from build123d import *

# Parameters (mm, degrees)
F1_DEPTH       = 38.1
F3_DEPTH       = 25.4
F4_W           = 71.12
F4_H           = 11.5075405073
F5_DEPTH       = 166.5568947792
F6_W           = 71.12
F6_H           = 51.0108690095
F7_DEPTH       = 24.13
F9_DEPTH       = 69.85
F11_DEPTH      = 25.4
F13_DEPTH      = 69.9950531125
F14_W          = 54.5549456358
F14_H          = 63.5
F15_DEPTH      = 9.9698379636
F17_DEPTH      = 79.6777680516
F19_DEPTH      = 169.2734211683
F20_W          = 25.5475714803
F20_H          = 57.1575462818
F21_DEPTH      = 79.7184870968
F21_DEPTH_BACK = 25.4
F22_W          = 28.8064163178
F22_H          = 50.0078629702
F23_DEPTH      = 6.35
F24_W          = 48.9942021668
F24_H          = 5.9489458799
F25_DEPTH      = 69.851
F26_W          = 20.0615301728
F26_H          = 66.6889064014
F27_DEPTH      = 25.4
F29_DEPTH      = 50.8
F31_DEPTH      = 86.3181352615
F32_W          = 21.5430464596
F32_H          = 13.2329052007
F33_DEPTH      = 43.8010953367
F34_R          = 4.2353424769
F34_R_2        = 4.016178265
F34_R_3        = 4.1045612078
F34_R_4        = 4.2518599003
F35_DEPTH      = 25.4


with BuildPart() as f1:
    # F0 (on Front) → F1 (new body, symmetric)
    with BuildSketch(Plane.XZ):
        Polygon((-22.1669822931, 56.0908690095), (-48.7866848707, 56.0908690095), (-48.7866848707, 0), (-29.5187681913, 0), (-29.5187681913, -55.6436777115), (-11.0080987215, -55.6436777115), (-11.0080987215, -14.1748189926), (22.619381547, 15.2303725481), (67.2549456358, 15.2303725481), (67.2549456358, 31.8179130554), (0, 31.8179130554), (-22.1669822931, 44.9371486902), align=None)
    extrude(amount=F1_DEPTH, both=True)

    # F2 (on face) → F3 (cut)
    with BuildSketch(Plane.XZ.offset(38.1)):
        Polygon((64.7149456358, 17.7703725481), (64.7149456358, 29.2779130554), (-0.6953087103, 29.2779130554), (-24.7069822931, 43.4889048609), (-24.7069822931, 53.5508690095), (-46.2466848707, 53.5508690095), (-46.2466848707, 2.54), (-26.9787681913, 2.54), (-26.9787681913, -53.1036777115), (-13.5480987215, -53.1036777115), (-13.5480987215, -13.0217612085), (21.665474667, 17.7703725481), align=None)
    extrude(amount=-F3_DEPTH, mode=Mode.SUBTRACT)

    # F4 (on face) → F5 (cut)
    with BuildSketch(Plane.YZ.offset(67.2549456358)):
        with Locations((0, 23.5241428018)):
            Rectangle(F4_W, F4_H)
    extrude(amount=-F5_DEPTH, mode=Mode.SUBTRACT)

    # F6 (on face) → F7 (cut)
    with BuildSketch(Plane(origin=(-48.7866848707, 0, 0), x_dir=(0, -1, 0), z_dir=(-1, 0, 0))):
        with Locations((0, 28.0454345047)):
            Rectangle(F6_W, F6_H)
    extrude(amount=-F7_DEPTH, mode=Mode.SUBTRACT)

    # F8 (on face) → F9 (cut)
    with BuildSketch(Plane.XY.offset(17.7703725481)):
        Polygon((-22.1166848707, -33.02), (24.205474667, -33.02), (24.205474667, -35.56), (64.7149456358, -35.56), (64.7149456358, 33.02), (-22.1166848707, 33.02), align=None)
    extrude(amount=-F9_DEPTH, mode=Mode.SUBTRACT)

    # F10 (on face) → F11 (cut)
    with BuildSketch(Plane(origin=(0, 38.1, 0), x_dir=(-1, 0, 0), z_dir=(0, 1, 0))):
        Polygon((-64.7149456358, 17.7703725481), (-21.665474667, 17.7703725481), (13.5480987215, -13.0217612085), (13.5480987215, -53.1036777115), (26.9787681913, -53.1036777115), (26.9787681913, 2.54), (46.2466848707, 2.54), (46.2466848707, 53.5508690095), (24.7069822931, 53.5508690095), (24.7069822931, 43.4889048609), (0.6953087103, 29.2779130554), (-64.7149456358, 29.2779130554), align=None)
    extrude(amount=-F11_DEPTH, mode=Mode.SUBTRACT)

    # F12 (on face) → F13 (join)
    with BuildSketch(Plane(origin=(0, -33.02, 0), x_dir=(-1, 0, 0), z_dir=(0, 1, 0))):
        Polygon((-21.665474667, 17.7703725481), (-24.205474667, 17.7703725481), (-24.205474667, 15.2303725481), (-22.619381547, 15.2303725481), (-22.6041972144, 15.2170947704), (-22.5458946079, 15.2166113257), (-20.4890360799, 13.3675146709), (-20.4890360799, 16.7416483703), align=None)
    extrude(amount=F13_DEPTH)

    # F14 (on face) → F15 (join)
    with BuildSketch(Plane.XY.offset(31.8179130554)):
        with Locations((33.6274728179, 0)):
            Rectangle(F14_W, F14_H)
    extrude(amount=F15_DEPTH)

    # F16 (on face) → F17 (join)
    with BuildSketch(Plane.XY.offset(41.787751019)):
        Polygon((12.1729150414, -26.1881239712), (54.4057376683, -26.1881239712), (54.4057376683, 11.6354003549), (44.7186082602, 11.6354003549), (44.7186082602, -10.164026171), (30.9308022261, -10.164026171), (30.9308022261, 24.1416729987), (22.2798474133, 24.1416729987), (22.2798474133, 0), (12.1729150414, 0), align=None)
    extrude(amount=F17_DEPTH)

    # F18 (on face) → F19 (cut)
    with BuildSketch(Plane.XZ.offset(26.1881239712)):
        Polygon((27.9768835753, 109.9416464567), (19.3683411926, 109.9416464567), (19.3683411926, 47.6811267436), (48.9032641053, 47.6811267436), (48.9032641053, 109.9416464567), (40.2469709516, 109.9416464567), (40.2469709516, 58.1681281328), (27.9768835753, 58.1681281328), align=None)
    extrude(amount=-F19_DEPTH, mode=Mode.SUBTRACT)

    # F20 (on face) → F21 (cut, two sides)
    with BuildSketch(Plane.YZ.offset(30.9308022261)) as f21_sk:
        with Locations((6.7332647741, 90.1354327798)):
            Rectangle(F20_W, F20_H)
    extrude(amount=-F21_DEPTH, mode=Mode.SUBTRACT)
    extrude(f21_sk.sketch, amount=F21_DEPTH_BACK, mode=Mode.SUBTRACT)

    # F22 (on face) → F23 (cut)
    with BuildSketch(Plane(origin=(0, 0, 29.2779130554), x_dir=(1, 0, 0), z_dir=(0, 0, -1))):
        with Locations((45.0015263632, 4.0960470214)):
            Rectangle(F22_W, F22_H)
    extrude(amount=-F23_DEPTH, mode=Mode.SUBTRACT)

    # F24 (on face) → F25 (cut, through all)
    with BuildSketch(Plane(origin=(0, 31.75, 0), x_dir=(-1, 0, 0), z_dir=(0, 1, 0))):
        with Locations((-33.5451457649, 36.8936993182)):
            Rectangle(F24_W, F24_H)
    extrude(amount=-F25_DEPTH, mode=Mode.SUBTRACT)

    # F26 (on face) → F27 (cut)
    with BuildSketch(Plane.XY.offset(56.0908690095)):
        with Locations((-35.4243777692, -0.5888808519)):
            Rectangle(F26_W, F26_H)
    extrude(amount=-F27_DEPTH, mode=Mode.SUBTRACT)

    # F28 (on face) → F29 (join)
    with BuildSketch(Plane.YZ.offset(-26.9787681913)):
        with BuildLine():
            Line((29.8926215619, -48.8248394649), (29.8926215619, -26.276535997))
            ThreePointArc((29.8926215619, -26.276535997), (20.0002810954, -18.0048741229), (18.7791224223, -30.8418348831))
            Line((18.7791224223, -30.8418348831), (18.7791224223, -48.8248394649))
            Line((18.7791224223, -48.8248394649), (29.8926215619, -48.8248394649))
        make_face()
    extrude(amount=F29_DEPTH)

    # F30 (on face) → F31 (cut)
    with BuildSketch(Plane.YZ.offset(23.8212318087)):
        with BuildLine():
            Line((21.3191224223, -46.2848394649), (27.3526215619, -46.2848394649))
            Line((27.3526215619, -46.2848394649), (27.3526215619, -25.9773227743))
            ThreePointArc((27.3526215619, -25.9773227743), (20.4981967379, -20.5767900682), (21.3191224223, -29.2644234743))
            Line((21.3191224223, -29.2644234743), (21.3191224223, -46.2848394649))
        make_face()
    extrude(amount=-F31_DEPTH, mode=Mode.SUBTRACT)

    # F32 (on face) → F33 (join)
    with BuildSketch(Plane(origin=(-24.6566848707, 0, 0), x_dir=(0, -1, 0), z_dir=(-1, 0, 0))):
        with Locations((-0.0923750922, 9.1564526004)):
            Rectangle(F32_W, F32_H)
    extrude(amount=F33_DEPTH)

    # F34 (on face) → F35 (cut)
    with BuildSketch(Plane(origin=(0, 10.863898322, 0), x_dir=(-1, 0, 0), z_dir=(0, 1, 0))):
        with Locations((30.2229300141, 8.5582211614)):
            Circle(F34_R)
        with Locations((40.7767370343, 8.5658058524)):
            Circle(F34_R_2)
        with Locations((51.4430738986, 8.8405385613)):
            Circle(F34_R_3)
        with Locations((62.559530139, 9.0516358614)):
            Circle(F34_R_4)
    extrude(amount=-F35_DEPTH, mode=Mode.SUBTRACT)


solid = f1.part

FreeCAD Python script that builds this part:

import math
import FreeCAD as App
import Part
import Sketcher
Q = App.Units.Quantity


def add_polygon(sketch, points):
    """Adds a closed chain of lines whose ends are joined by coincident constraints."""
    first, n = sketch.GeometryCount, len(points)
    for a, b in zip(points, points[1:] + points[:1]):
        sketch.addGeometry(Part.LineSegment(App.Vector(*a, 0), App.Vector(*b, 0)), False)
    for i in range(n):
        sketch.addConstraint(Sketcher.Constraint("Coincident", first + i, 2, first + (i + 1) % n, 1))

doc = App.newDocument("Part")
params = doc.addObject("Spreadsheet::Sheet", "Params")
for row, (alias, value) in enumerate([
    ("pad1_length", "3 in"),
    ("pocket1_length", "1 in"),
    ("sketch3_width", "2.8 in"),
    ("pocket2_length", "166.556895 mm"),
    ("sketch4_width", "2.8 in"),
    ("pocket3_length", "0.95 in"),
    ("sketch5_height", "0.1 in"),
    ("sketch5_height2", "2.7 in"),
    ("pocket4_length", "2.75 in"),
    ("pocket5_length", "1 in"),
    ("sketch7_width", "0.1 in"),
    ("pad2_length", "69.995053 mm"),
    ("sketch8_height", "2.5 in"),
    ("pad3_length", "9.969838 mm"),
    ("pad4_length", "79.677768 mm"),
    ("pocket6_length", "169.273421 mm"),
    ("pocket8_length", "0.25 in"),
    ("pocket10_length", "1 in"),
    ("pad5_length", "2 in"),
    ("pocket11_length", "86.318135 mm"),
    ("pad6_length", "43.801095 mm"),
    ("pocket12_length", "1 in"),
], start=1):
    params.set(f"A{row}", alias)
    params.set(f"B{row}", "=" + value)
    params.setAlias(f"B{row}", alias)

body = doc.addObject("PartDesign::Body", "Body")

# Sketch on XZ plane
sketch1 = body.newObject("Sketcher::SketchObject", "Sketch")
sketch1.AttachmentSupport = (doc.getObject("XZ_Plane"), [""])
sketch1.MapMode = "FlatFace"
add_polygon(sketch1, [(-22, 56), (-49, 56), (-49, 0), (-30, 0), (-30, -56), (-11, -56), (-11, -14), (23, 15), (67, 15), (67, 32), (0, 32), (-22, 45)])  # lines 0-11
sketch1.addConstraint([
    Sketcher.Constraint("Horizontal", 0),
    Sketcher.Constraint("Vertical", 1),
    Sketcher.Constraint("Horizontal", 2),
    Sketcher.Constraint("Vertical", 3),
    Sketcher.Constraint("Horizontal", 4),
    Sketcher.Constraint("Vertical", 5),
    Sketcher.Constraint("Horizontal", 7),
    Sketcher.Constraint("Vertical", 8),
    Sketcher.Constraint("Horizontal", 9),
    Sketcher.Constraint("Vertical", 11),
    Sketcher.Constraint("PointOnObject", 1, 2, -1),
    Sketcher.Constraint("PointOnObject", 9, 2, -2),
    Sketcher.Constraint("DistanceX", 4, 1, 4, 2, Q("18.510669 mm")),
    Sketcher.Constraint("DistanceY", 1, 2, 1, 1, Q("56.090869 mm")),
    Sketcher.Constraint("DistanceY", 5, 1, 5, 2, Q("41.468859 mm")),
    Sketcher.Constraint("DistanceY", 8, 1, 8, 2, Q("16.587541 mm")),
    Sketcher.Constraint("DistanceY", 11, 1, 11, 2, Q("11.15372 mm")),
    Sketcher.Constraint("DistanceX", 4, 2, -1, 1, Q("11.008099 mm")),
    Sketcher.Constraint("Distance", 10, Q("25.758289 mm")),
    Sketcher.Constraint("DistanceX", 0, 2, 0, 1, Q("26.619703 mm")),
    Sketcher.Constraint("DistanceX", 2, 1, 2, 2, Q("19.267917 mm")),
    Sketcher.Constraint("DistanceX", 7, 1, 7, 2, Q("44.635564 mm")),
    Sketcher.Constraint("DistanceX", 9, 2, 9, 1, Q("67.254946 mm")),
    Sketcher.Constraint("DistanceY", 3, 2, 3, 1, Q("55.643678 mm")),
])
pad1 = body.newObject("PartDesign::Pad", "Pad")
pad1.Profile = sketch1
pad1.setExpression("Length", "Params.pad1_length")
pad1.Midplane = True

# Sketch on XZ plane
sketch2 = body.newObject("Sketcher::SketchObject", "Sketch001")
sketch2.AttachmentSupport = (doc.getObject("XZ_Plane"), [""])
sketch2.MapMode = "FlatFace"
sketch2.AttachmentOffset = App.Placement(App.Vector(0, 0, 1.5 * 25.4), App.Rotation())
add_polygon(sketch2, [(65, 18), (65, 29), (-1, 29), (-25, 43), (-25, 54), (-46, 54), (-46, 3), (-27, 3), (-27, -53), (-14, -53), (-14, -13), (22, 18)])  # lines 0-11
sketch2.addConstraint([
    Sketcher.Constraint("Vertical", 0),
    Sketcher.Constraint("Horizontal", 1),
    Sketcher.Constraint("Vertical", 3),
    Sketcher.Constraint("Horizontal", 4),
    Sketcher.Constraint("Vertical", 5),
    Sketcher.Constraint("Horizontal", 6),
    Sketcher.Constraint("Vertical", 7),
    Sketcher.Constraint("Horizontal", 8),
    Sketcher.Constraint("Vertical", 9),
    Sketcher.Constraint("Horizontal", 11),
    Sketcher.Constraint("DistanceY", -1, 1, 5, 2, Q("0.1 in")),
    Sketcher.Constraint("DistanceX", 8, 1, 8, 2, Q("13.430669 mm")),
    Sketcher.Constraint("DistanceX", 11, 1, 11, 2, Q("43.049471 mm")),
    Sketcher.Constraint("DistanceY", 0, 1, 0, 2, Q("11.507541 mm")),
    Sketcher.Constraint("DistanceY", 5, 2, 5, 1, Q("51.010869 mm")),
    Sketcher.Constraint("DistanceX", 8, 2, -1, 1, Q("13.548099 mm")),
    Sketcher.Constraint("Distance", 2, Q("27.901841 mm")),
    Sketcher.Constraint("Distance", 10, Q("46.777679 mm")),
    Sketcher.Constraint("DistanceX", 1, 2, 1, 1, Q("65.410254 mm")),
    Sketcher.Constraint("DistanceX", 4, 2, 4, 1, Q("21.539703 mm")),
    Sketcher.Constraint("DistanceX", 6, 1, 6, 2, Q("19.267917 mm")),
    Sketcher.Constraint("DistanceY", 3, 1, 3, 2, Q("10.061964 mm")),
    Sketcher.Constraint("DistanceY", 7, 2, 7, 1, Q("55.643678 mm")),
    Sketcher.Constraint("DistanceY", 9, 1, 9, 2, Q("40.081917 mm")),
])
pocket1 = body.newObject("PartDesign::Pocket", "Pocket")
pocket1.Profile = sketch2
pocket1.setExpression("Length", "Params.pocket1_length")

# Sketch on YZ plane
sketch3 = body.newObject("Sketcher::SketchObject", "Sketch002")
sketch3.AttachmentSupport = (doc.getObject("YZ_Plane"), [""])
sketch3.MapMode = "FlatFace"
sketch3.AttachmentOffset = App.Placement(App.Vector(0, 0, 67.254946), App.Rotation())
add_polygon(sketch3, [(-36, 29), (-36, 18), (36, 18), (36, 29)])  # lines 0-3
sketch3.addConstraint([
    Sketcher.Constraint("Vertical", 0),
    Sketcher.Constraint("Horizontal", 1),
    Sketcher.Constraint("Vertical", 2),
    Sketcher.Constraint("Horizontal", 3),
    Sketcher.Constraint("DistanceX", 1, 1, 1, 2, Q("2.8 in")),
    Sketcher.Constraint("DistanceX", 0, 2, -1, 1, Q("1.4 in")),
    Sketcher.Constraint("DistanceY", 0, 2, 0, 1, Q("11.507541 mm")),
    Sketcher.Constraint("DistanceY", -1, 1, 0, 2, Q("17.770373 mm")),
])
sketch3.setExpression("Constraints[8]", "Params.sketch3_width")
pocket2 = body.newObject("PartDesign::Pocket", "Pocket001")
pocket2.Profile = sketch3
pocket2.setExpression("Length", "Params.pocket2_length")

# Sketch on YZ plane
sketch4 = body.newObject("Sketcher::SketchObject", "Sketch003")
sketch4.AttachmentSupport = (doc.getObject("YZ_Plane"), [""])
sketch4.MapMode = "FlatFace"
sketch4.AttachmentOffset = App.Placement(App.Vector(0, 0, -48.786685), App.Rotation())
add_polygon(sketch4, [(36, 54), (36, 3), (-36, 3), (-36, 54)])  # lines 0-3
sketch4.addConstraint([
    Sketcher.Constraint("Vertical", 0),
    Sketcher.Constraint("Horizontal", 1),
    Sketcher.Constraint("Vertical", 2),
    Sketcher.Constraint("Horizontal", 3),
    Sketcher.Constraint("DistanceX", 1, 2, 1, 1, Q("2.8 in")),
    Sketcher.Constraint("DistanceX", -1, 1, 0, 2, Q("1.4 in")),
    Sketcher.Constraint("DistanceY", -1, 1, 0, 2, Q("0.1 in")),
    Sketcher.Constraint("DistanceY", 0, 2, 0, 1, Q("51.010869 mm")),
])
sketch4.setExpression("Constraints[8]", "Params.sketch4_width")
pocket3 = body.newObject("PartDesign::Pocket", "Pocket002")
pocket3.Profile = sketch4
pocket3.setExpression("Length", "Params.pocket3_length")
pocket3.Reversed = True

# Sketch on XY plane
sketch5 = body.newObject("Sketcher::SketchObject", "Sketch004")
sketch5.AttachmentSupport = (doc.getObject("XY_Plane"), [""])
sketch5.MapMode = "FlatFace"
sketch5.AttachmentOffset = App.Placement(App.Vector(0, 0, 17.770373), App.Rotation())
add_polygon(sketch5, [(-22.1, -33), (24.2, -33), (24.2, -35.6), (64.7, -35.6), (64.7, 33), (-22.1, 33)])  # lines 0-5
sketch5.addConstraint([
    Sketcher.Constraint("Horizontal", 0),
    Sketcher.Constraint("Vertical", 1),
    Sketcher.Constraint("Horizontal", 2),
    Sketcher.Constraint("Vertical", 3),
    Sketcher.Constraint("Horizontal", 4),
    Sketcher.Constraint("Vertical", 5),
    Sketcher.Constraint("DistanceY", 1, 2, 1, 1, Q("0.1 in")),
    Sketcher.Constraint("DistanceY", 3, 1, 3, 2, Q("2.7 in")),
    Sketcher.Constraint("DistanceY", 0, 2, -1, 1, Q("1.3 in")),
    Sketcher.Constraint("DistanceX", 0, 1, 0, 2, Q("46.32216 mm")),
    Sketcher.Constraint("DistanceX", 2, 1, 2, 2, Q("40.509471 mm")),
    Sketcher.Constraint("DistanceX", -1, 1, 0, 2, Q("24.205475 mm")),
])
sketch5.setExpression("Constraints[12]", "Params.sketch5_height")
sketch5.setExpression("Constraints[13]", "Params.sketch5_height2")
pocket4 = body.newObject("PartDesign::Pocket", "Pocket003")
pocket4.Profile = sketch5
pocket4.setExpression("Length", "Params.pocket4_length")

# Sketch on XZ plane
sketch6 = body.newObject("Sketcher::SketchObject", "Sketch005")
sketch6.AttachmentSupport = (doc.getObject("XZ_Plane"), [""])
sketch6.MapMode = "FlatFace"
sketch6.AttachmentOffset = App.Placement(App.Vector(0, 0, -1.5 * 25.4), App.Rotation())
add_polygon(sketch6, [(65, 18), (22, 18), (-14, -13), (-14, -53), (-27, -53), (-27, 3), (-46, 3), (-46, 54), (-25, 54), (-25, 43), (-1, 29), (65, 29)])  # lines 0-11
sketch6.addConstraint([
    Sketcher.Constraint("Horizontal", 0),
    Sketcher.Constraint("Vertical", 2),
    Sketcher.Constraint("Horizontal", 3),
    Sketcher.Constraint("Vertical", 4),
    Sketcher.Constraint("Horizontal", 5),
    Sketcher.Constraint("Vertical", 6),
    Sketcher.Constraint("Horizontal", 7),
    Sketcher.Constraint("Vertical", 8),
    Sketcher.Constraint("Horizontal", 10),
    Sketcher.Constraint("Vertical", 11),
    Sketcher.Constraint("DistanceY", -1, 1, 4, 2, Q("0.1 in")),
    Sketcher.Constraint("DistanceX", 0, 2, 0, 1, Q("43.049471 mm")),
    Sketcher.Constraint("DistanceX", 3, 2, 3, 1, Q("13.430669 mm")),
    Sketcher.Constraint("DistanceY", 6, 1, 6, 2, Q("51.010869 mm")),
    Sketcher.Constraint("DistanceY", 11, 2, 11, 1, Q("11.507541 mm")),
    Sketcher.Constraint("DistanceX", 1, 2, -1, 1, Q("13.548099 mm")),
    Sketcher.Constraint("Distance", 1, Q("46.777679 mm")),
    Sketcher.Constraint("Distance", 9, Q("27.901841 mm")),
    Sketcher.Constraint("DistanceX", 5, 2, 5, 1, Q("19.267917 mm")),
    Sketcher.Constraint("DistanceX", 7, 1, 7, 2, Q("21.539703 mm")),
    Sketcher.Constraint("DistanceX", 10, 1, 10, 2, Q("65.410254 mm")),
    Sketcher.Constraint("DistanceY", 2, 2, 2, 1, Q("40.081917 mm")),
    Sketcher.Constraint("DistanceY", 4, 1, 4, 2, Q("55.643678 mm")),
    Sketcher.Constraint("DistanceY", 8, 2, 8, 1, Q("10.061964 mm")),
])
pocket5 = body.newObject("PartDesign::Pocket", "Pocket004")
pocket5.Profile = sketch6
pocket5.setExpression("Length", "Params.pocket5_length")
pocket5.Reversed = True

# Sketch on XZ plane
sketch7 = body.newObject("Sketcher::SketchObject", "Sketch006")
sketch7.AttachmentSupport = (doc.getObject("XZ_Plane"), [""])
sketch7.MapMode = "FlatFace"
sketch7.AttachmentOffset = App.Placement(App.Vector(0, 0, 1.3 * 25.4), App.Rotation())
add_polygon(sketch7, [(21.665, 17.77), (24.205, 17.77), (24.205, 15.23), (22.619, 15.23), (22.604, 15.217), (22.546, 15.217), (20.489, 13.368), (20.489, 16.742)])  # lines 0-7
sketch7.addConstraint([
    Sketcher.Constraint("Horizontal", 0),
    Sketcher.Constraint("Vertical", 1),
    Sketcher.Constraint("Horizontal", 2),
    Sketcher.Constraint("Vertical", 6),
    Sketcher.Constraint("Parallel", 3, 7),
    Sketcher.Constraint("Equal", 0, 1),
    Sketcher.Constraint("DistanceX", 0, 1, 0, 2, Q("0.1 in")),
    Sketcher.Constraint("Distance", 3, Q("0.020171 mm")),
    Sketcher.Constraint("Distance", 5, Q("2.765832 mm")),
    Sketcher.Constraint("Distance", 7, Q("1.56278 mm")),
    Sketcher.Constraint("DistanceX", 2, 2, 2, 1, Q("1.586093 mm")),
    Sketcher.Constraint("DistanceY", 6, 1, 6, 2, Q("3.374134 mm")),
    Sketcher.Constraint("DistanceX", -1, 1, 2, 2, Q("22.619382 mm")),
    Sketcher.Constraint("DistanceY", -1, 1, 4, 2, Q("15.216611 mm")),
    Sketcher.Constraint("DistanceY", -1, 1, 6, 2, Q("16.741648 mm")),
    Sketcher.Constraint("DistanceY", 4, 2, 2, 2, Q("0.013761 mm")),
])
sketch7.setExpression("Constraints[14]", "Params.sketch7_width")
pad2 = body.newObject("PartDesign::Pad", "Pad001")
pad2.Profile = sketch7
pad2.setExpression("Length", "Params.pad2_length")
pad2.Reversed = True

# Sketch on XY plane
sketch8 = body.newObject("Sketcher::SketchObject", "Sketch007")
sketch8.AttachmentSupport = (doc.getObject("XY_Plane"), [""])
sketch8.MapMode = "FlatFace"
sketch8.AttachmentOffset = App.Placement(App.Vector(0, 0, 31.817913), App.Rotation())
add_polygon(sketch8, [(6, 32), (6, -32), (61, -32), (61, 32)])  # lines 0-3
sketch8.addConstraint([
    Sketcher.Constraint("Vertical", 0),
    Sketcher.Constraint("Horizontal", 1),
    Sketcher.Constraint("Vertical", 2),
    Sketcher.Constraint("Horizontal", 3),
    Sketcher.Constraint("DistanceY", 0, 2, 0, 1, Q("2.5 in")),
    Sketcher.Constraint("DistanceX", -1, 1, 0, 2, Q("0.25 in")),
    Sketcher.Constraint("DistanceY", 0, 2, -1, 1, Q("1.25 in")),
    Sketcher.Constraint("DistanceX", 1, 1, 1, 2, Q("54.554946 mm")),
])
sketch8.setExpression("Constraints[8]", "Params.sketch8_height")
pad3 = body.newObject("PartDesign::Pad", "Pad002")
pad3.Profile = sketch8
pad3.setExpression("Length", "Params.pad3_length")

# Sketch on XY plane
sketch9 = body.newObject("Sketcher::SketchObject", "Sketch008")
sketch9.AttachmentSupport = (doc.getObject("XY_Plane"), [""])
sketch9.MapMode = "FlatFace"
sketch9.AttachmentOffset = App.Placement(App.Vector(0, 0, 41.787751), App.Rotation())
add_polygon(sketch9, [(12, -26), (54, -26), (54, 12), (45, 12), (45, -10), (31, -10), (31, 24), (22, 24), (22, 0), (12, 0)])  # lines 0-9
sketch9.addConstraint([
    Sketcher.Constraint("Horizontal", 0),
    Sketcher.Constraint("Vertical", 1),
    Sketcher.Constraint("Horizontal", 2),
    Sketcher.Constraint("Vertical", 3),
    Sketcher.Constraint("Horizontal", 4),
    Sketcher.Constraint("Vertical", 5),
    Sketcher.Constraint("Horizontal", 6),
    Sketcher.Constraint("Vertical", 7),
    Sketcher.Constraint("Horizontal", 8),
    Sketcher.Constraint("Vertical", 9),
    Sketcher.Constraint("PointOnObject", 7, 2, -1),
    Sketcher.Constraint("DistanceY", 5, 1, 5, 2, Q("34.305699 mm")),
    Sketcher.Constraint("DistanceX", 2, 2, 2, 1, Q("9.687129 mm")),
    Sketcher.Constraint("DistanceY", -1, 1, 1, 2, Q("11.6354 mm")),
    Sketcher.Constraint("DistanceX", 0, 1, 0, 2, Q("42.232823 mm")),
    Sketcher.Constraint("DistanceX", 4, 2, 4, 1, Q("13.787806 mm")),
    Sketcher.Constraint("DistanceX", 6, 2, 6, 1, Q("8.650955 mm")),
    Sketcher.Constraint("DistanceY", 1, 1, 1, 2, Q("37.823524 mm")),
    Sketcher.Constraint("DistanceY", 3, 2, 3, 1, Q("21.799427 mm")),
    Sketcher.Constraint("DistanceX", -1, 1, 2, 2, Q("44.718608 mm")),
])
pad4 = body.newObject("PartDesign::Pad", "Pad003")
pad4.Profile = sketch9
pad4.setExpression("Length", "Params.pad4_length")

# Sketch on XZ plane
sketch10 = body.newObject("Sketcher::SketchObject", "Sketch009")
sketch10.AttachmentSupport = (doc.getObject("XZ_Plane"), [""])
sketch10.MapMode = "FlatFace"
sketch10.AttachmentOffset = App.Placement(App.Vector(0, 0, 26.188124), App.Rotation())
add_polygon(sketch10, [(28, 110), (19, 110), (19, 48), (49, 48), (49, 110), (40, 110), (40, 58), (28, 58)])  # lines 0-7
sketch10.addConstraint([
    Sketcher.Constraint("Horizontal", 0),
    Sketcher.Constraint("Vertical", 1),
    Sketcher.Constraint("Horizontal", 2),
    Sketcher.Constraint("Vertical", 3),
    Sketcher.Constraint("Horizontal", 4),
    Sketcher.Constraint("Vertical", 5),
    Sketcher.Constraint("Horizontal", 6),
    Sketcher.Constraint("Vertical", 7),
    Sketcher.Constraint("Horizontal", 0, 2, 3, 2),
    Sketcher.Constraint("DistanceY", 1, 2, 1, 1, Q("62.26052 mm")),
    Sketcher.Constraint("DistanceY", 5, 2, 5, 1, Q("51.773518 mm")),
    Sketcher.Constraint("DistanceX", 0, 2, 0, 1, Q("8.608542 mm")),
    Sketcher.Constraint("DistanceX", 2, 1, 2, 2, Q("29.534923 mm")),
    Sketcher.Constraint("DistanceX", 4, 2, 4, 1, Q("8.656293 mm")),
    Sketcher.Constraint("DistanceX", -1, 1, 0, 2, Q("19.368341 mm")),
    Sketcher.Constraint("DistanceY", -1, 1, 5, 2, Q("58.168128 mm")),
])
pocket6 = body.newObject("PartDesign::Pocket", "Pocket005")
pocket6.Profile = sketch10
pocket6.setExpression("Length", "Params.pocket6_length")

# Sketch on YZ plane
sketch11 = body.newObject("Sketcher::SketchObject", "Sketch010")
sketch11.AttachmentSupport = (doc.getObject("YZ_Plane"), [""])
sketch11.MapMode = "FlatFace"
sketch11.AttachmentOffset = App.Placement(App.Vector(0, 0, 30.930802), App.Rotation())
add_polygon(sketch11, [(-6, 119), (-6, 62), (20, 62), (20, 119)])  # lines 0-3
sketch11.addConstraint([
    Sketcher.Constraint("Vertical", 0),
    Sketcher.Constraint("Horizontal", 1),
    Sketcher.Constraint("Vertical", 2),
    Sketcher.Constraint("Horizontal", 3),
    Sketcher.Constraint("DistanceX", 1, 1, 1, 2, Q("25.547571 mm")),
    Sketcher.Constraint("DistanceY", 0, 2, 0, 1, Q("57.157546 mm")),
    Sketcher.Constraint("DistanceX", 0, 2, -1, 1, Q("6.040521 mm")),
    Sketcher.Constraint("DistanceY", -1, 1, 0, 2, Q("61.55666 mm")),
])
pocket7 = body.newObject("PartDesign::Pocket", "Pocket006")
pocket7.Profile = sketch11
pocket7.Type = "ThroughAll"
pocket7.Midplane = True

# Sketch on XY plane
sketch12 = body.newObject("Sketcher::SketchObject", "Sketch011")
sketch12.AttachmentSupport = (doc.getObject("XY_Plane"), [""])
sketch12.MapMode = "FlatFace"
sketch12.AttachmentOffset = App.Placement(App.Vector(0, 0, 29.277913), App.Rotation())
add_polygon(sketch12, [(31, -29), (31, 21), (59, 21), (59, -29)])  # lines 0-3
sketch12.addConstraint([
    Sketcher.Constraint("Vertical", 0),
    Sketcher.Constraint("Horizontal", 1),
    Sketcher.Constraint("Vertical", 2),
    Sketcher.Constraint("Horizontal", 3),
    Sketcher.Constraint("DistanceX", 1, 1, 1, 2, Q("28.806416 mm")),
    Sketcher.Constraint("DistanceY", 0, 1, 0, 2, Q("50.007863 mm")),
    Sketcher.Constraint("DistanceX", -1, 1, 0, 2, Q("30.598318 mm")),
    Sketcher.Constraint("DistanceY", 2, 2, -1, 1, Q("29.099979 mm")),
])
pocket8 = body.newObject("PartDesign::Pocket", "Pocket007")
pocket8.Profile = sketch12
pocket8.setExpression("Length", "Params.pocket8_length")
pocket8.Reversed = True

# Sketch on XZ plane
sketch13 = body.newObject("Sketcher::SketchObject", "Sketch012")
sketch13.AttachmentSupport = (doc.getObject("XZ_Plane"), [""])
sketch13.MapMode = "FlatFace"
sketch13.AttachmentOffset = App.Placement(App.Vector(0, 0, -1.25 * 25.4), App.Rotation())
add_polygon(sketch13, [(58, 40), (58, 34), (9, 34), (9, 40)])  # lines 0-3
sketch13.addConstraint([
    Sketcher.Constraint("Vertical", 0),
    Sketcher.Constraint("Horizontal", 1),
    Sketcher.Constraint("Vertical", 2),
    Sketcher.Constraint("Horizontal", 3),
    Sketcher.Constraint("DistanceX", 1, 2, 1, 1, Q("48.994202 mm")),
    Sketcher.Constraint("DistanceY", 0, 2, 0, 1, Q("5.948946 mm")),
    Sketcher.Constraint("DistanceX", -1, 1, 0, 2, Q("58.042247 mm")),
    Sketcher.Constraint("DistanceY", -1, 1, 0, 2, Q("33.919226 mm")),
])
pocket9 = body.newObject("PartDesign::Pocket", "Pocket008")
pocket9.Profile = sketch13
pocket9.Type = "ThroughAll"
pocket9.Reversed = True

# Sketch on XY plane
sketch14 = body.newObject("Sketcher::SketchObject", "Sketch013")
sketch14.AttachmentSupport = (doc.getObject("XY_Plane"), [""])
sketch14.MapMode = "FlatFace"
sketch14.AttachmentOffset = App.Placement(App.Vector(0, 0, 56.090869), App.Rotation())
add_polygon(sketch14, [(-45, 33), (-45, -34), (-25, -34), (-25, 33)])  # lines 0-3
sketch14.addConstraint([
    Sketcher.Constraint("Vertical", 0),
    Sketcher.Constraint("Horizontal", 1),
    Sketcher.Constraint("Vertical", 2),
    Sketcher.Constraint("Horizontal", 3),
    Sketcher.Constraint("DistanceX", 1, 1, 1, 2, Q("20.06153 mm")),
    Sketcher.Constraint("DistanceY", 0, 2, 0, 1, Q("66.688906 mm")),
    Sketcher.Constraint("DistanceX", 0, 2, -1, 1, Q("45.455143 mm")),
    Sketcher.Constraint("DistanceY", 0, 2, -1, 1, Q("33.933334 mm")),
])
pocket10 = body.newObject("PartDesign::Pocket", "Pocket009")
pocket10.Profile = sketch14
pocket10.setExpression("Length", "Params.pocket10_length")

# Sketch on YZ plane
sketch15 = body.newObject("Sketcher::SketchObject", "Sketch014")
sketch15.AttachmentSupport = (doc.getObject("YZ_Plane"), [""])
sketch15.MapMode = "FlatFace"
sketch15.AttachmentOffset = App.Placement(App.Vector(0, 0, -26.978768), App.Rotation())
sketch15.addGeometry([
    Part.LineSegment(App.Vector(30, -49, 0), App.Vector(30, -26, 0)),
    Part.ArcOfCircle(Part.Circle(App.Vector(23, -25, 0), App.Vector(0, 0, 1), 7), math.radians(-12), math.radians(237)),
    Part.LineSegment(App.Vector(19, -31, 0), App.Vector(19, -49, 0)),
    Part.LineSegment(App.Vector(19, -49, 0), App.Vector(30, -49, 0)),
], False)
sketch15.addConstraint([
    Sketcher.Constraint("Coincident", 0, 2, 1, 1),
    Sketcher.Constraint("Coincident", 1, 2, 2, 1),
    Sketcher.Constraint("Coincident", 2, 2, 3, 1),
    Sketcher.Constraint("Coincident", 3, 2, 0, 1),
    Sketcher.Constraint("Vertical", 0),
    Sketcher.Constraint("Vertical", 2),
    Sketcher.Constraint("Horizontal", 3),
    Sketcher.Constraint("Radius", 1, Q("7.286461 mm")),
    Sketcher.Constraint("DistanceX", 3, 1, 3, 2, Q("11.113499 mm")),
    Sketcher.Constraint("DistanceY", 1, 2, 0, 2, Q("4.565299 mm")),
    Sketcher.Constraint("DistanceY", 0, 1, 0, 2, Q("22.548303 mm")),
    Sketcher.Constraint("DistanceY", 1, 3, -1, 1, Q("24.744819 mm")),
    Sketcher.Constraint("DistanceX", -1, 1, 0, 2, Q("29.892622 mm")),
])
pad5 = body.newObject("PartDesign::Pad", "Pad004")
pad5.Profile = sketch15
pad5.setExpression("Length", "Params.pad5_length")

# Sketch on YZ plane
sketch16 = body.newObject("Sketcher::SketchObject", "Sketch015")
sketch16.AttachmentSupport = (doc.getObject("YZ_Plane"), [""])
sketch16.MapMode = "FlatFace"
sketch16.AttachmentOffset = App.Placement(App.Vector(0, 0, 23.821232), App.Rotation())
sketch16.addGeometry([
    Part.LineSegment(App.Vector(21.3, -46.3, 0), App.Vector(27.4, -46.3, 0)),
    Part.LineSegment(App.Vector(27.4, -46.3, 0), App.Vector(27.4, -26, 0)),
    Part.ArcOfCircle(Part.Circle(App.Vector(22.8, -24.7, 0), App.Vector(0, 0, 1), 4.7), math.radians(-15), math.radians(252)),
    Part.LineSegment(App.Vector(21.3, -29.3, 0), App.Vector(21.3, -46.3, 0)),
], False)
sketch16.addConstraint([
    Sketcher.Constraint("Coincident", 0, 2, 1, 1),
    Sketcher.Constraint("Coincident", 1, 2, 2, 1),
    Sketcher.Constraint("Coincident", 2, 2, 3, 1),
    Sketcher.Constraint("Coincident", 3, 2, 0, 1),
    Sketcher.Constraint("Horizontal", 0),
    Sketcher.Constraint("Vertical", 1),
    Sketcher.Constraint("Vertical", 3),
    Sketcher.Constraint("Radius", 2, Q("4.746461 mm")),
    Sketcher.Constraint("DistanceX", 0, 1, 0, 2, Q("6.033499 mm")),
    Sketcher.Constraint("DistanceY", 2, 2, 1, 2, Q("3.287101 mm")),
    Sketcher.Constraint("DistanceY", 1, 1, 1, 2, Q("20.307517 mm")),
    Sketcher.Constraint("DistanceY", 2, 3, -1, 1, Q("24.744819 mm")),
    Sketcher.Constraint("DistanceX", -1, 1, 0, 2, Q("27.352622 mm")),
])
pocket11 = body.newObject("PartDesign::Pocket", "Pocket010")
pocket11.Profile = sketch16
pocket11.setExpression("Length", "Params.pocket11_length")

# Sketch on YZ plane
sketch17 = body.newObject("Sketcher::SketchObject", "Sketch016")
sketch17.AttachmentSupport = (doc.getObject("YZ_Plane"), [""])
sketch17.MapMode = "FlatFace"
sketch17.AttachmentOffset = App.Placement(App.Vector(0, 0, -24.656685), App.Rotation())
add_polygon(sketch17, [(11, 16), (11, 3), (-11, 3), (-11, 16)])  # lines 0-3
sketch17.addConstraint([
    Sketcher.Constraint("Vertical", 0),
    Sketcher.Constraint("Horizontal", 1),
    Sketcher.Constraint("Vertical", 2),
    Sketcher.Constraint("Horizontal", 3),
    Sketcher.Constraint("DistanceY", -1, 1, 0, 2, Q("0.1 in")),
    Sketcher.Constraint("DistanceX", -1, 1, 0, 2, Q("10.863898 mm")),
    Sketcher.Constraint("DistanceX", 1, 2, 1, 1, Q("21.543046 mm")),
    Sketcher.Constraint("DistanceY", 0, 2, 0, 1, Q("13.232905 mm")),
])
pad6 = body.newObject("PartDesign::Pad", "Pad005")
pad6.Profile = sketch17
pad6.setExpression("Length", "Params.pad6_length")
pad6.Reversed = True

# Sketch on XZ plane
sketch18 = body.newObject("Sketcher::SketchObject", "Sketch017")
sketch18.AttachmentSupport = (doc.getObject("XZ_Plane"), [""])
sketch18.MapMode = "FlatFace"
sketch18.AttachmentOffset = App.Placement(App.Vector(0, 0, -10.863898), App.Rotation())
sketch18.addGeometry([
    Part.Circle(App.Vector(-30.2, 8.6, 0), App.Vector(0, 0, 1), 4.2),
    Part.Circle(App.Vector(-40.8, 8.6, 0), App.Vector(0, 0, 1), 4),
    Part.Circle(App.Vector(-51.4, 8.8, 0), App.Vector(0, 0, 1), 4.1),
    Part.Circle(App.Vector(-62.6, 9.1, 0), App.Vector(0, 0, 1), 4.3),
], False)
sketch18.addConstraint([
    Sketcher.Constraint("Diameter", 3, Q("8.50372 mm")),
    Sketcher.Constraint("Diameter", 0, Q("8.470685 mm")),
    Sketcher.Constraint("Diameter", 1, Q("8.032357 mm")),
    Sketcher.Constraint("Diameter", 2, Q("8.209122 mm")),
    Sketcher.Constraint("DistanceX", 3, 3, 0, 3, Q("32.3366 mm")),
    Sketcher.Constraint("DistanceX", 0, 3, -1, 1, Q("30.22293 mm")),
    Sketcher.Constraint("DistanceY", -1, 1, 0, 3, Q("8.558221 mm")),
    Sketcher.Constraint("DistanceY", -1, 1, 2, 3, Q("8.840539 mm")),
    Sketcher.Constraint("DistanceY", 1, 3, 3, 3, Q("0.48583 mm")),
    Sketcher.Constraint("DistanceX", 1, 3, -1, 1, Q("40.776737 mm")),
    Sketcher.Constraint("DistanceY", -1, 1, 1, 3, Q("8.565806 mm")),
    Sketcher.Constraint("DistanceX", 2, 3, -1, 1, Q("51.443074 mm")),
])
pocket12 = body.newObject("PartDesign::Pocket", "Pocket011")
pocket12.Profile = sketch18
pocket12.setExpression("Length", "Params.pocket12_length")
pocket12.Reversed = True

doc.recompute()
